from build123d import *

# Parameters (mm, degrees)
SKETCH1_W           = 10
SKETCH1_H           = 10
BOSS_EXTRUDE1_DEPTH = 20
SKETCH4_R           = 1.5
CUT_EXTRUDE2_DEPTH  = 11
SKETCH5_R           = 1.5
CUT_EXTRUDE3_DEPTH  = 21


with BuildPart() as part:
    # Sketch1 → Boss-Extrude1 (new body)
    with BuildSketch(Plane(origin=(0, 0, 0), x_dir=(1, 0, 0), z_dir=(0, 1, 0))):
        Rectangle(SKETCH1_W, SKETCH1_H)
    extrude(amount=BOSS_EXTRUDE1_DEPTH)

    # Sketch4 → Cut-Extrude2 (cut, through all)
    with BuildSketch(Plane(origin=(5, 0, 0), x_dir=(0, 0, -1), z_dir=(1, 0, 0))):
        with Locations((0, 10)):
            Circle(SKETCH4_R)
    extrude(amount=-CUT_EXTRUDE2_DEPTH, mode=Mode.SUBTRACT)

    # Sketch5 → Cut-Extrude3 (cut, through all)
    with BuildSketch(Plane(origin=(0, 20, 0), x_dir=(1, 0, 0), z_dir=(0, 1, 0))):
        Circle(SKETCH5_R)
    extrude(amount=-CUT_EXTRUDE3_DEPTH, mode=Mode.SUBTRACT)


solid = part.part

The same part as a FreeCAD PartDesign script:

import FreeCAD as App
import Part
import Sketcher
from FreeCAD import Vector


def add_polygon(sketch, points):
    """Adds a closed chain of lines whose ends are joined by coincident constraints."""
    first, n = sketch.GeometryCount, len(points)
    for a, b in zip(points, points[1:] + points[:1]):
        sketch.addGeometry(Part.LineSegment(App.Vector(*a, 0), App.Vector(*b, 0)), False)
    for i in range(n):
        sketch.addConstraint(Sketcher.Constraint("Coincident", first + i, 2, first + (i + 1) % n, 1))

doc = App.newDocument("Part")
body = doc.addObject("PartDesign::Body", "Body")

# Sketch on XZ plane
sketch1 = doc.addObject("Sketcher::SketchObject", "Sketch")
body.addObject(sketch1)
sketch1.AttachmentSupport = (doc.XZ_Plane, [""])
sketch1.MapMode = "FlatFace"
add_polygon(sketch1, [(-5, -5), (-5, 5), (5, 5), (5, -5)])  # lines 0-3
sketch1.addConstraint([
    Sketcher.Constraint("Vertical", 0),
    Sketcher.Constraint("Horizontal", 1),
    Sketcher.Constraint("Vertical", 2),
    Sketcher.Constraint("Horizontal", 3),
    Sketcher.Constraint("Symmetric", 0, 2, 2, 2, -1, 1),
    Sketcher.Constraint("Equal", 3, 0),
    Sketcher.Constraint("DistanceX", 1, 1, 1, 2, 10.0),
])
pad1 = doc.addObject("PartDesign::Pad", "Pad")
body.addObject(pad1)
pad1.Profile = sketch1
pad1.Length = 20
pad1.Reversed = True

# Sketch on YZ plane
sketch2 = doc.addObject("Sketcher::SketchObject", "Sketch001")
body.addObject(sketch2)
sketch2.AttachmentSupport = (doc.YZ_Plane, [""])
sketch2.MapMode = "FlatFace"
sketch2.AttachmentOffset = App.Placement(Vector(0, 0, 5), App.Rotation())
sketch2.addGeometry(Part.Circle(Vector(10, 0, 0), Vector(0, 0, 1), 1.5), False)
sketch2.addConstraint([
    Sketcher.Constraint("PointOnObject", 0, 3, -1),
    Sketcher.Constraint("Diameter", 0, 3.0),
    Sketcher.Constraint("DistanceX", -1, 1, 0, 3, 10.0),
])
pocket1 = doc.addObject("PartDesign::Pocket", "Pocket")
body.addObject(pocket1)
pocket1.Profile = sketch2
pocket1.Type = "ThroughAll"

# Sketch on XZ plane
sketch3 = doc.addObject("Sketcher::SketchObject", "Sketch002")
body.addObject(sketch3)
sketch3.AttachmentSupport = (doc.XZ_Plane, [""])
sketch3.MapMode = "FlatFace"
sketch3.AttachmentOffset = App.Placement(Vector(0, 0, -20), App.Rotation())
sketch3.addGeometry(Part.Circle(Vector(0, 0, 0), Vector(0, 0, 1), 1.5), False)
sketch3.addConstraint([
    Sketcher.Constraint("Coincident", 0, 3, -1, 1),
    Sketcher.Constraint("Diameter", 0, 3.0),
])
pocket2 = doc.addObject("PartDesign::Pocket", "Pocket001")
body.addObject(pocket2)
pocket2.Profile = sketch3
pocket2.Type = "ThroughAll"
pocket2.Reversed = True

doc.recompute()
